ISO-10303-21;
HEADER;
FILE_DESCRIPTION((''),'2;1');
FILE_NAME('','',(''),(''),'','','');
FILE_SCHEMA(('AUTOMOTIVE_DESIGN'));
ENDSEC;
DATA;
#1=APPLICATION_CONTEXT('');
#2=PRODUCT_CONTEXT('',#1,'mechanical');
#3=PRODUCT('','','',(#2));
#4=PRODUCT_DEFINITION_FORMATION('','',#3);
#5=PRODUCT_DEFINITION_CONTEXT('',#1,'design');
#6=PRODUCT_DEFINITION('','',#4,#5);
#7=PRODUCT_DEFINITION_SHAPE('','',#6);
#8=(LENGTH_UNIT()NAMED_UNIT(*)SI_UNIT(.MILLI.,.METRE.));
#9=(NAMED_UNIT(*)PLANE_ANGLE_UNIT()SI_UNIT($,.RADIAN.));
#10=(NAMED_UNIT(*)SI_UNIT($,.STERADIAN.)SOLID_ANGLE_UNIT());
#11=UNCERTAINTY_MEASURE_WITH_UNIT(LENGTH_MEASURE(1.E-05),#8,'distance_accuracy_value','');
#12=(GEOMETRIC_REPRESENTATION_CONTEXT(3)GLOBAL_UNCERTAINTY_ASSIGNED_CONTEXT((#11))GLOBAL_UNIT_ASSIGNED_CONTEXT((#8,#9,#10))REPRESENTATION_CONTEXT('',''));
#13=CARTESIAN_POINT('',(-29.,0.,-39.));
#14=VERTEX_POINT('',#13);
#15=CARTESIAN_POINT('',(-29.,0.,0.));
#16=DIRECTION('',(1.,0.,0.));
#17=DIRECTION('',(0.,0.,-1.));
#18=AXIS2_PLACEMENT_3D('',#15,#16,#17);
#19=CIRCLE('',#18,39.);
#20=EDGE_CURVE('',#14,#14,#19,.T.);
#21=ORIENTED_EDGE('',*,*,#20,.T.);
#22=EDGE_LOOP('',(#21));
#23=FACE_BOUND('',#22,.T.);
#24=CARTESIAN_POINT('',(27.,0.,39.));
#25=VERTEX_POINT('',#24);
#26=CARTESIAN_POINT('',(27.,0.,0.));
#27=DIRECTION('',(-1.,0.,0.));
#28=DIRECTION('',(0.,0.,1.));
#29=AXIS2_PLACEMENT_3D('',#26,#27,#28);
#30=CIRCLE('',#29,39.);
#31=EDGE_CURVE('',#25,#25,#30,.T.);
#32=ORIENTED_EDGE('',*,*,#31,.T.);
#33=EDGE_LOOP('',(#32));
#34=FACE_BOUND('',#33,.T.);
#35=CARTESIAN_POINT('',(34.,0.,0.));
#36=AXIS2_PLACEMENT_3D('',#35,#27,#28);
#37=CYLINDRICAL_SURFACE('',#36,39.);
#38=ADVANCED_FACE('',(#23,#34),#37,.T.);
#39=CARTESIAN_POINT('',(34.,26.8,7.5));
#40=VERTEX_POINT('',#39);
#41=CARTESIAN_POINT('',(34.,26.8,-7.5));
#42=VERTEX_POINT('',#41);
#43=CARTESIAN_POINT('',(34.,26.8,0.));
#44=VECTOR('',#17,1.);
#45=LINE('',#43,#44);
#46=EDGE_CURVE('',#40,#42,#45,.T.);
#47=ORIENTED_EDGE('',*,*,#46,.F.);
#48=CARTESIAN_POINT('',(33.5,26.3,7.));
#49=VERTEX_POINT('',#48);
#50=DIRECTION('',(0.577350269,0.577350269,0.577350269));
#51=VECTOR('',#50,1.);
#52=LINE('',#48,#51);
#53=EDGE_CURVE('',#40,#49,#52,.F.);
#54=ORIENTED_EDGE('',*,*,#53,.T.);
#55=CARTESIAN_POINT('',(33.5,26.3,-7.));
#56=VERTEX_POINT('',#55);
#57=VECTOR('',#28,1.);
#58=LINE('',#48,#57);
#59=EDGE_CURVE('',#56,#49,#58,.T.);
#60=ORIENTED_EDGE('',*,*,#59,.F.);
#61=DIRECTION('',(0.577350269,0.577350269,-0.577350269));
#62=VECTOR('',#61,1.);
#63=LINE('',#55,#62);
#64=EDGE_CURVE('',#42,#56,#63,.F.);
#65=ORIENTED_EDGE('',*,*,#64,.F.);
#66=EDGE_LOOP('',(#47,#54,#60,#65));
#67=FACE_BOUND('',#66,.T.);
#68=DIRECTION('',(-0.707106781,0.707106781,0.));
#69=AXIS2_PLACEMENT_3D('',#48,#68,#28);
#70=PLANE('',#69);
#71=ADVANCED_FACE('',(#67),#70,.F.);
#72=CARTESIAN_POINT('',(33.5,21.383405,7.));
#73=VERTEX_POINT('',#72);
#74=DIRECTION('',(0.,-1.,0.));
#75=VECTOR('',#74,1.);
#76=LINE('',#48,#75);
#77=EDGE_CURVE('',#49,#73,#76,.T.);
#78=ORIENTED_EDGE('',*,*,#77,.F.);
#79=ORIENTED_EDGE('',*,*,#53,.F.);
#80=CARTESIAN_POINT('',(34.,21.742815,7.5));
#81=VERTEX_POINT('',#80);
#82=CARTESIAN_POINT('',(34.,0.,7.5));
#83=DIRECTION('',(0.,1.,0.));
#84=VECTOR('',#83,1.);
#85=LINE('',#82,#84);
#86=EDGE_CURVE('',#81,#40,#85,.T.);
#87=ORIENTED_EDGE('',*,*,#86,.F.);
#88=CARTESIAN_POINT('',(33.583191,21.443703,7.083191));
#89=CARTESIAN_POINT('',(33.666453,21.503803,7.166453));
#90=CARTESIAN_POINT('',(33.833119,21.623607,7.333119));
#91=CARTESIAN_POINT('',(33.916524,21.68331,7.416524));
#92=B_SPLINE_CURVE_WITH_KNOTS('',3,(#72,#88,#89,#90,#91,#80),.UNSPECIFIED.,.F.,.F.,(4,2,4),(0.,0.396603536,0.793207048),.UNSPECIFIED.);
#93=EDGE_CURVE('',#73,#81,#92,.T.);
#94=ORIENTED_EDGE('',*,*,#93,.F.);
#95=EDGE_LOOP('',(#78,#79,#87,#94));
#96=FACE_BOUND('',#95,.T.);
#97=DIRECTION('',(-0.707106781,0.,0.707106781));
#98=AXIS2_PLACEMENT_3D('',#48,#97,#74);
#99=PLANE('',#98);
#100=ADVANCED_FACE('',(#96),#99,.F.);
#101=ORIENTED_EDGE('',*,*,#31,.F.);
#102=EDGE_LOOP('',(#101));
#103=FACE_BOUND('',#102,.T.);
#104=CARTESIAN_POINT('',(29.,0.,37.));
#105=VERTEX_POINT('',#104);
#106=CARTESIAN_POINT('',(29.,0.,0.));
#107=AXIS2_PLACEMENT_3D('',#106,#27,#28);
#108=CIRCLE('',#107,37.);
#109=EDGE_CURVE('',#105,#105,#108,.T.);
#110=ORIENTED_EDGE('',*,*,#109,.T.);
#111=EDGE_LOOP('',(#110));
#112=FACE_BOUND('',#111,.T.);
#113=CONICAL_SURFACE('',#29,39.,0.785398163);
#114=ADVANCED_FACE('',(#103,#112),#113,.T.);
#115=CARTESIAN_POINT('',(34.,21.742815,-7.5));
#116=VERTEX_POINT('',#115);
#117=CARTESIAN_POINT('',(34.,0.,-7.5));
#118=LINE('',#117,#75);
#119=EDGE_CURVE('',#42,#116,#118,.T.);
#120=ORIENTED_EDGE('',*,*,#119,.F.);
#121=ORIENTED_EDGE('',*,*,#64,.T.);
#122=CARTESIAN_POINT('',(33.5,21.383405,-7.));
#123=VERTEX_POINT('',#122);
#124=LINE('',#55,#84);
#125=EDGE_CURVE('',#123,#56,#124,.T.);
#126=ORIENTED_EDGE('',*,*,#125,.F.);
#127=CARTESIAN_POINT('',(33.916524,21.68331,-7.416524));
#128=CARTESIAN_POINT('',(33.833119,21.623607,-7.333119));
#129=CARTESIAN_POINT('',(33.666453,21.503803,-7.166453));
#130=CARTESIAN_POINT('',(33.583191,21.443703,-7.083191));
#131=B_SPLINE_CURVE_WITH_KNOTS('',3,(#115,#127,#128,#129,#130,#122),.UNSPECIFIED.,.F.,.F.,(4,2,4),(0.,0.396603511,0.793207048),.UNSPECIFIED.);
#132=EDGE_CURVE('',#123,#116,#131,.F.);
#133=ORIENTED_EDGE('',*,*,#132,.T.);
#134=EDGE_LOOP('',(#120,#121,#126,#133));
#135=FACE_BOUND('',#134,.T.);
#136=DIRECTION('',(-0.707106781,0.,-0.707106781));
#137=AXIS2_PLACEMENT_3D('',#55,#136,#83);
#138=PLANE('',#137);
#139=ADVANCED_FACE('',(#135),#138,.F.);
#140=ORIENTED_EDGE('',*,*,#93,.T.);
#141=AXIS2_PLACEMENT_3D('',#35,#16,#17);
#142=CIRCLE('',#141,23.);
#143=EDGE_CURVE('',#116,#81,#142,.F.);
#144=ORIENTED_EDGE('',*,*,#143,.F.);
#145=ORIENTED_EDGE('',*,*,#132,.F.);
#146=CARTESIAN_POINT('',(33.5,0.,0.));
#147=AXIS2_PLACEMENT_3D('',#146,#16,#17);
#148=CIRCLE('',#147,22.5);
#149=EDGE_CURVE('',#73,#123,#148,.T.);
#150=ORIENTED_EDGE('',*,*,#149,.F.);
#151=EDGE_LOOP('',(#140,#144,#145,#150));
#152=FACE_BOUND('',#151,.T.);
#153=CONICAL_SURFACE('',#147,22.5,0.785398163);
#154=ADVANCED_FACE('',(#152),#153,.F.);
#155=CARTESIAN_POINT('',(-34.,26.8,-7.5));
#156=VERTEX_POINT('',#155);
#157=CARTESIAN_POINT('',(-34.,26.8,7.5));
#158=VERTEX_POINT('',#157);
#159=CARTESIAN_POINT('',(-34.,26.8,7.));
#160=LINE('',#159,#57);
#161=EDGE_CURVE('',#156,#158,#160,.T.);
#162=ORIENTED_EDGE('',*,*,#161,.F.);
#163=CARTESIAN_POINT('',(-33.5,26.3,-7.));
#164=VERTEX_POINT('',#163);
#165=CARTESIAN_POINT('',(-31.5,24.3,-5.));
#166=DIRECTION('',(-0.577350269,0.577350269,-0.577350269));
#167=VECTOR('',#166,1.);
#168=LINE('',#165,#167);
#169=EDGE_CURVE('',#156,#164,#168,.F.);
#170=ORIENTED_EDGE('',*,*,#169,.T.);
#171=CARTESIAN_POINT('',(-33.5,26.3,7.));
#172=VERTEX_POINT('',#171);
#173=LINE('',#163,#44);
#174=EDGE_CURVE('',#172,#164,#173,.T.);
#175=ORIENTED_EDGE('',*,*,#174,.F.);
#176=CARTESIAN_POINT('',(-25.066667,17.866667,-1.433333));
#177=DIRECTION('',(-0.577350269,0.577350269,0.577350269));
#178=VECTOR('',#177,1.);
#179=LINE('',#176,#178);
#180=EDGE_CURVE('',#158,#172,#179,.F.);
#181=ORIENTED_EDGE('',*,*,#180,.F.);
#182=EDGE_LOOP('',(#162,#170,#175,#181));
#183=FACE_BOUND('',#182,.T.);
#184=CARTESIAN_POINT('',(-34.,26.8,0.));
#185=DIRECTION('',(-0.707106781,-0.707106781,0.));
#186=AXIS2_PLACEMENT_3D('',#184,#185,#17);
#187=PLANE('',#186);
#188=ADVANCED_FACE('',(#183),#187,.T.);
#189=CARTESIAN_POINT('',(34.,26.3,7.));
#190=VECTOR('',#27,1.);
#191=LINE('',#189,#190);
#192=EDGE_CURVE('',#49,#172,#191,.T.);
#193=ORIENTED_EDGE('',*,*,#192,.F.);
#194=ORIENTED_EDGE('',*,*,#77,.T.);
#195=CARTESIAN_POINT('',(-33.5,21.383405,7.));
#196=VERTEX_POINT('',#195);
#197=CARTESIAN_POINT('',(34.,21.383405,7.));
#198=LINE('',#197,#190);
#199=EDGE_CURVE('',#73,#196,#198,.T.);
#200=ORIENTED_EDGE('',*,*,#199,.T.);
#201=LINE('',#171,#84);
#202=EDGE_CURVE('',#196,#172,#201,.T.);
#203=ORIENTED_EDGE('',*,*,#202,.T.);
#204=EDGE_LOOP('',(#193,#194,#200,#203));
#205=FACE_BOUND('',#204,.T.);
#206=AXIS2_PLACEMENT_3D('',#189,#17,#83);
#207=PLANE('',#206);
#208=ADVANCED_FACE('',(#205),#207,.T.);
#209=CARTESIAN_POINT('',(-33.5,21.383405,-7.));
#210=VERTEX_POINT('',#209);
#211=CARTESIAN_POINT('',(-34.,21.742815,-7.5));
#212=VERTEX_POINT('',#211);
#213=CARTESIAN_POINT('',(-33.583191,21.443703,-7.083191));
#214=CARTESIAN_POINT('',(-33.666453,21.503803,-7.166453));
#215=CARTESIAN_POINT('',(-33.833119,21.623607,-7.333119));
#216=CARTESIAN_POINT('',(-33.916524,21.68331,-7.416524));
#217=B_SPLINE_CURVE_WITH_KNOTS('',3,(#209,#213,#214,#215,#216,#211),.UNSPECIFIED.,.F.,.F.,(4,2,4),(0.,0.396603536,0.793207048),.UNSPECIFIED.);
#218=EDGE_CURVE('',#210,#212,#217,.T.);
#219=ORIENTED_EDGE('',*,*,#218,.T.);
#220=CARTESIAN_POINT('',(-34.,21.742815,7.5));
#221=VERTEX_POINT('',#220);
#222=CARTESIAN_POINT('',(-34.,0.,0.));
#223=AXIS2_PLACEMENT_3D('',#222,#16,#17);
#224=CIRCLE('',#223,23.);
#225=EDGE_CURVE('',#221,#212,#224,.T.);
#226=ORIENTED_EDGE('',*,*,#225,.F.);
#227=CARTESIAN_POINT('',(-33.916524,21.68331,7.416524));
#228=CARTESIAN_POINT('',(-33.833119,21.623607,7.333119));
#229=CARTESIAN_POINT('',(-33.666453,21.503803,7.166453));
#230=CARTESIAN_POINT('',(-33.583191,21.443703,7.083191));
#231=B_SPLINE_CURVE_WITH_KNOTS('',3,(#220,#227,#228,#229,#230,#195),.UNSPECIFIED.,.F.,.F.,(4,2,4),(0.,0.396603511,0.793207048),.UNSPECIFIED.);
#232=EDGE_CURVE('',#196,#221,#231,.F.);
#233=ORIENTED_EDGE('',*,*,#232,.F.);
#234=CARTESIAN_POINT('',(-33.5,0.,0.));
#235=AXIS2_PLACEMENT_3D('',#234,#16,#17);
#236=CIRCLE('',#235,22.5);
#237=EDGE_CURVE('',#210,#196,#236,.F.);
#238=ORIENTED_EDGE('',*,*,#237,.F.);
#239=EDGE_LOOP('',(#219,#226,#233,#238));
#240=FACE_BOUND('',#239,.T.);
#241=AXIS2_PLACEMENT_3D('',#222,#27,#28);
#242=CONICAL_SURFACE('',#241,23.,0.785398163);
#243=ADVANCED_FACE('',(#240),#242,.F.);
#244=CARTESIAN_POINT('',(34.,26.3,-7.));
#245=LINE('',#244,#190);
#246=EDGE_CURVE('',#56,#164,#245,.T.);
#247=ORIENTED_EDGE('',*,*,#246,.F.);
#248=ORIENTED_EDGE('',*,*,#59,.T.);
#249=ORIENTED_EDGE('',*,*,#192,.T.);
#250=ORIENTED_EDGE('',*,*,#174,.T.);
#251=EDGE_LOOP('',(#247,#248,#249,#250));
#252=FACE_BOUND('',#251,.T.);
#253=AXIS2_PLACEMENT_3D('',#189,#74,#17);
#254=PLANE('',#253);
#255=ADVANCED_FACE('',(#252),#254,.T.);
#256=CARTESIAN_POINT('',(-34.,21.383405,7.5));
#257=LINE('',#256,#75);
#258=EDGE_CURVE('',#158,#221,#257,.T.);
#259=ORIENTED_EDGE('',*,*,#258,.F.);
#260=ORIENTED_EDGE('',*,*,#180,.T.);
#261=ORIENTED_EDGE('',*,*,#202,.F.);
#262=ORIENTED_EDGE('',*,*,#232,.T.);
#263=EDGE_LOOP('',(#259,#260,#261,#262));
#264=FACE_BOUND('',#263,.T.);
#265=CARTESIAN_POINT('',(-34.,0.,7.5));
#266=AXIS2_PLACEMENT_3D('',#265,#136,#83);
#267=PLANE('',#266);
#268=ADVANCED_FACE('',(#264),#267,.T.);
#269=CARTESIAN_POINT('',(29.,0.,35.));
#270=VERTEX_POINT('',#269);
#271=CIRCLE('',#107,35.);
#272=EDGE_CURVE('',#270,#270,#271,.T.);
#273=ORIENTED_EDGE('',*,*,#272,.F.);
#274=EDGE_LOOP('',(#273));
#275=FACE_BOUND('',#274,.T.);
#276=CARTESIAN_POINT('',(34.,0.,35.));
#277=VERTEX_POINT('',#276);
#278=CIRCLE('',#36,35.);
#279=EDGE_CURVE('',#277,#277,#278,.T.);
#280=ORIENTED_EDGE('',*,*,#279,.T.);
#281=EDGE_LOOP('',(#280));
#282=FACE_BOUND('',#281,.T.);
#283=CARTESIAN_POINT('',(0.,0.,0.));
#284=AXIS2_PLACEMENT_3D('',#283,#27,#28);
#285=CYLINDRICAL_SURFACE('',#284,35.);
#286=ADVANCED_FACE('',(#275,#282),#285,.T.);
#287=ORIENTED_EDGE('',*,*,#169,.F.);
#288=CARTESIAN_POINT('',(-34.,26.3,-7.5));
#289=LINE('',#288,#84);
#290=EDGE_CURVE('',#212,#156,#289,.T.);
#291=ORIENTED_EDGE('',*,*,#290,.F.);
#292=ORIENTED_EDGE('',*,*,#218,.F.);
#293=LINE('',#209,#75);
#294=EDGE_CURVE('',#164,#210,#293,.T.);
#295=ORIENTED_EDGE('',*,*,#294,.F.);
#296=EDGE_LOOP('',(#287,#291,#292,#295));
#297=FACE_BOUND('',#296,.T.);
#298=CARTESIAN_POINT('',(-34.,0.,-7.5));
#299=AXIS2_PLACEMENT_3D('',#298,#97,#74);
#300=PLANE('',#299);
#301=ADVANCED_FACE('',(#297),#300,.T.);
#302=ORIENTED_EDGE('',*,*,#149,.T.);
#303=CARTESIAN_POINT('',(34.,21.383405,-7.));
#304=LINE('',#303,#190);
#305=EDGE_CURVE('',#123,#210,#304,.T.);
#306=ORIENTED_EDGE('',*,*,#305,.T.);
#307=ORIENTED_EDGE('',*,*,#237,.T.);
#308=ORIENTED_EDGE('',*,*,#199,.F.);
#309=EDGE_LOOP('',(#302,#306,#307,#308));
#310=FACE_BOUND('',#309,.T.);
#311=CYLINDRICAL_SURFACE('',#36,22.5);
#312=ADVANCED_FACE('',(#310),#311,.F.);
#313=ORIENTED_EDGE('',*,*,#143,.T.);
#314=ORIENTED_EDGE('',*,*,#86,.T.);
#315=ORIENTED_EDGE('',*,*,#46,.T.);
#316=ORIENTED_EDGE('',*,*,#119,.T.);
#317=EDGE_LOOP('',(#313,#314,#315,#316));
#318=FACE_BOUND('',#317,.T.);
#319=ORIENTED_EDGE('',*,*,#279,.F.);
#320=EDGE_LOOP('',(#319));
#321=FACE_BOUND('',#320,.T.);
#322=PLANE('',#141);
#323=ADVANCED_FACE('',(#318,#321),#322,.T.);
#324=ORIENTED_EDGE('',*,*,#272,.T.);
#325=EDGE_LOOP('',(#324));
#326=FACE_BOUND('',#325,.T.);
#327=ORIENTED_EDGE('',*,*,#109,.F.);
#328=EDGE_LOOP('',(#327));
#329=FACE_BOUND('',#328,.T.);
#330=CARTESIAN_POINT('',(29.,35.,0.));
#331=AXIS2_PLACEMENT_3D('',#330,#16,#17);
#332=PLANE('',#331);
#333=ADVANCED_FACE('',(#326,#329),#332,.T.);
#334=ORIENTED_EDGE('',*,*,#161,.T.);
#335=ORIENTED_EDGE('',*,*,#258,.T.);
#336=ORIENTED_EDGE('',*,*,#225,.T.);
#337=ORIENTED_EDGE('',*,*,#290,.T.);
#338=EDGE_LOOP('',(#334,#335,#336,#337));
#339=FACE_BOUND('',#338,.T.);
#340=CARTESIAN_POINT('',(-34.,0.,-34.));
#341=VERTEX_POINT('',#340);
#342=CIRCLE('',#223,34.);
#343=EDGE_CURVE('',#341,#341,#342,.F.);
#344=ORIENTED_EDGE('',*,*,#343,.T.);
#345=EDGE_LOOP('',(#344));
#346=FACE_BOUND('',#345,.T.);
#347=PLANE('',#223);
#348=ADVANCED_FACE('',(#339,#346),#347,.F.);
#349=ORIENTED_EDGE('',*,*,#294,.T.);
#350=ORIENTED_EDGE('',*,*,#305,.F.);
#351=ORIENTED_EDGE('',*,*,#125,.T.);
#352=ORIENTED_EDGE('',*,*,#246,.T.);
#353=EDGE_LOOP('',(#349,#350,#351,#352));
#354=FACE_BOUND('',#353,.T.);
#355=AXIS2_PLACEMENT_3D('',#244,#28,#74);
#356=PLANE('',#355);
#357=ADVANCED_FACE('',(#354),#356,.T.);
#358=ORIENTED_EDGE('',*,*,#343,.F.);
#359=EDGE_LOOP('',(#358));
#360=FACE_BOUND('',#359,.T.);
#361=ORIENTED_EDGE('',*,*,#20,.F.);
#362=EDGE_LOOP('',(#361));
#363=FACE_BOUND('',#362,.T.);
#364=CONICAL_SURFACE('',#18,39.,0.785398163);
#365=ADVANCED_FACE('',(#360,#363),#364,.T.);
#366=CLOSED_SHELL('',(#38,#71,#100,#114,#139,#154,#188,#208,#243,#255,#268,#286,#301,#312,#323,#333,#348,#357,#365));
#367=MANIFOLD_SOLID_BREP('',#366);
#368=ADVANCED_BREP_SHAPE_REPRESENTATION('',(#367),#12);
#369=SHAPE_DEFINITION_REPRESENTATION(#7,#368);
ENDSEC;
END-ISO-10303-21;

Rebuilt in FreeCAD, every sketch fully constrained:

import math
import FreeCAD as App
import Part
import Sketcher

V = App.Vector


def edges_at(feature, points):
    """Names of the edges that pass closest to the given points."""
    edges = feature.Shape.Edges
    near = lambda p: min(range(len(edges)), key=lambda i: edges[i].distToShape(Part.Vertex(*p))[0])
    return sorted({f"Edge{near(p) + 1}" for p in points})


def add_polygon(sketch, points):
    """Adds a closed chain of lines whose ends are joined by coincident constraints."""
    first, n = sketch.GeometryCount, len(points)
    for a, b in zip(points, points[1:] + points[:1]):
        sketch.addGeometry(Part.LineSegment(App.Vector(*a, 0), App.Vector(*b, 0)), False)
    for i in range(n):
        sketch.addConstraint(Sketcher.Constraint("Coincident", first + i, 2, first + (i + 1) % n, 1))

doc = App.newDocument("Part")
body = doc.addObject("PartDesign::Body", "Body")

# Sketch on YZ plane
sketch1 = body.newObject("Sketcher::SketchObject", "Sketch")
sketch1.AttachmentSupport = (doc.getObject("YZ_Plane"), [""])
sketch1.MapMode = "FlatFace"
sketch1.addGeometry([
    Part.Circle(V(0, 0, 0), V(0, 0, 1), 39),  # 0
    Part.LineSegment(V(21.4, 7, 0), V(26.3, 7, 0)),  # 1
    Part.LineSegment(V(26.3, 7, 0), V(26.3, -7, 0)),  # 2
    Part.LineSegment(V(26.3, -7, 0), V(21.4, -7, 0)),  # 3
    Part.ArcOfCircle(Part.Circle(V(0, 0, 0), V(0, 0, 1), 22.5), math.radians(18), math.radians(342)),  # 4
], False)
sketch1.addConstraint([
    Sketcher.Constraint("Coincident", 1, 2, 2, 1),
    Sketcher.Constraint("Coincident", 2, 2, 3, 1),
    Sketcher.Constraint("Coincident", 3, 2, 4, 2),
    Sketcher.Constraint("Coincident", 4, 1, 1, 1),
    Sketcher.Constraint("Horizontal", 1),
    Sketcher.Constraint("Vertical", 2),
    Sketcher.Constraint("Horizontal", 3),
    Sketcher.Constraint("Coincident", 0, 3, -1, 1),
    Sketcher.Constraint("Coincident", 4, 3, -1, 1),
    Sketcher.Constraint("Vertical", 3, 2, 4, 1),
    Sketcher.Constraint("Diameter", 0, 78.0),
    Sketcher.Constraint("Radius", 4, 22.5),
    Sketcher.Constraint("DistanceY", 2, 2, 2, 1, 14.0),
    Sketcher.Constraint("DistanceX", -1, 1, 1, 2, 26.3),
])
pad1 = body.newObject("PartDesign::Pad", "Pad")
pad1.Profile = sketch1
pad1.Length = 68
pad1.Midplane = True
doc.recompute()

chamfer = body.newObject("PartDesign::Chamfer", "Chamfer")
chamfer.Base = (pad1, edges_at(pad1, [(-34, 0, 39)]))
chamfer.Size = 5
doc.recompute()

chamfer2 = body.newObject("PartDesign::Chamfer", "Chamfer001")
chamfer2.Base = (chamfer, edges_at(chamfer, [
    (34, 26.3, 0),
    (34, 23.842, 7),
    (-34, -22.5, 0),
    (-34, 23.842, -7),
    (-34, 26.3, 0),
    (-34, 23.842, 7),
    (34, -22.5, 0),
    (34, 23.842, -7),
]))
chamfer2.Size = 0.5

# Sketch on XY plane
sketch2 = body.newObject("Sketcher::SketchObject", "Sketch001")
sketch2.AttachmentSupport = (doc.getObject("XY_Plane"), [""])
sketch2.MapMode = "FlatFace"
add_polygon(sketch2, [(29, 35), (34, 35), (34, 39), (27, 39), (29, 37)])  # lines 0-4
sketch2.addConstraint([
    Sketcher.Constraint("Horizontal", 0),
    Sketcher.Constraint("Vertical", 1),
    Sketcher.Constraint("Horizontal", 2),
    Sketcher.Constraint("Vertical", 4),
    Sketcher.Constraint("DistanceX", 0, 1, 0, 2, 5.0),
    Sketcher.Constraint("DistanceX", 2, 2, 2, 1, 7.0),
    Sketcher.Constraint("DistanceY", 1, 1, 1, 2, 4.0),
    Sketcher.Constraint("DistanceY", 4, 2, 4, 1, 2.0),
    Sketcher.Constraint("DistanceX", -1, 1, 0, 2, 34.0),
    Sketcher.Constraint("DistanceY", -1, 1, 0, 2, 35.0),
])
groove = body.newObject("PartDesign::Groove", "Groove")
groove.Profile = sketch2
groove.ReferenceAxis = (sketch2, ["H_Axis"])
groove.Angle = 360

doc.recompute()
